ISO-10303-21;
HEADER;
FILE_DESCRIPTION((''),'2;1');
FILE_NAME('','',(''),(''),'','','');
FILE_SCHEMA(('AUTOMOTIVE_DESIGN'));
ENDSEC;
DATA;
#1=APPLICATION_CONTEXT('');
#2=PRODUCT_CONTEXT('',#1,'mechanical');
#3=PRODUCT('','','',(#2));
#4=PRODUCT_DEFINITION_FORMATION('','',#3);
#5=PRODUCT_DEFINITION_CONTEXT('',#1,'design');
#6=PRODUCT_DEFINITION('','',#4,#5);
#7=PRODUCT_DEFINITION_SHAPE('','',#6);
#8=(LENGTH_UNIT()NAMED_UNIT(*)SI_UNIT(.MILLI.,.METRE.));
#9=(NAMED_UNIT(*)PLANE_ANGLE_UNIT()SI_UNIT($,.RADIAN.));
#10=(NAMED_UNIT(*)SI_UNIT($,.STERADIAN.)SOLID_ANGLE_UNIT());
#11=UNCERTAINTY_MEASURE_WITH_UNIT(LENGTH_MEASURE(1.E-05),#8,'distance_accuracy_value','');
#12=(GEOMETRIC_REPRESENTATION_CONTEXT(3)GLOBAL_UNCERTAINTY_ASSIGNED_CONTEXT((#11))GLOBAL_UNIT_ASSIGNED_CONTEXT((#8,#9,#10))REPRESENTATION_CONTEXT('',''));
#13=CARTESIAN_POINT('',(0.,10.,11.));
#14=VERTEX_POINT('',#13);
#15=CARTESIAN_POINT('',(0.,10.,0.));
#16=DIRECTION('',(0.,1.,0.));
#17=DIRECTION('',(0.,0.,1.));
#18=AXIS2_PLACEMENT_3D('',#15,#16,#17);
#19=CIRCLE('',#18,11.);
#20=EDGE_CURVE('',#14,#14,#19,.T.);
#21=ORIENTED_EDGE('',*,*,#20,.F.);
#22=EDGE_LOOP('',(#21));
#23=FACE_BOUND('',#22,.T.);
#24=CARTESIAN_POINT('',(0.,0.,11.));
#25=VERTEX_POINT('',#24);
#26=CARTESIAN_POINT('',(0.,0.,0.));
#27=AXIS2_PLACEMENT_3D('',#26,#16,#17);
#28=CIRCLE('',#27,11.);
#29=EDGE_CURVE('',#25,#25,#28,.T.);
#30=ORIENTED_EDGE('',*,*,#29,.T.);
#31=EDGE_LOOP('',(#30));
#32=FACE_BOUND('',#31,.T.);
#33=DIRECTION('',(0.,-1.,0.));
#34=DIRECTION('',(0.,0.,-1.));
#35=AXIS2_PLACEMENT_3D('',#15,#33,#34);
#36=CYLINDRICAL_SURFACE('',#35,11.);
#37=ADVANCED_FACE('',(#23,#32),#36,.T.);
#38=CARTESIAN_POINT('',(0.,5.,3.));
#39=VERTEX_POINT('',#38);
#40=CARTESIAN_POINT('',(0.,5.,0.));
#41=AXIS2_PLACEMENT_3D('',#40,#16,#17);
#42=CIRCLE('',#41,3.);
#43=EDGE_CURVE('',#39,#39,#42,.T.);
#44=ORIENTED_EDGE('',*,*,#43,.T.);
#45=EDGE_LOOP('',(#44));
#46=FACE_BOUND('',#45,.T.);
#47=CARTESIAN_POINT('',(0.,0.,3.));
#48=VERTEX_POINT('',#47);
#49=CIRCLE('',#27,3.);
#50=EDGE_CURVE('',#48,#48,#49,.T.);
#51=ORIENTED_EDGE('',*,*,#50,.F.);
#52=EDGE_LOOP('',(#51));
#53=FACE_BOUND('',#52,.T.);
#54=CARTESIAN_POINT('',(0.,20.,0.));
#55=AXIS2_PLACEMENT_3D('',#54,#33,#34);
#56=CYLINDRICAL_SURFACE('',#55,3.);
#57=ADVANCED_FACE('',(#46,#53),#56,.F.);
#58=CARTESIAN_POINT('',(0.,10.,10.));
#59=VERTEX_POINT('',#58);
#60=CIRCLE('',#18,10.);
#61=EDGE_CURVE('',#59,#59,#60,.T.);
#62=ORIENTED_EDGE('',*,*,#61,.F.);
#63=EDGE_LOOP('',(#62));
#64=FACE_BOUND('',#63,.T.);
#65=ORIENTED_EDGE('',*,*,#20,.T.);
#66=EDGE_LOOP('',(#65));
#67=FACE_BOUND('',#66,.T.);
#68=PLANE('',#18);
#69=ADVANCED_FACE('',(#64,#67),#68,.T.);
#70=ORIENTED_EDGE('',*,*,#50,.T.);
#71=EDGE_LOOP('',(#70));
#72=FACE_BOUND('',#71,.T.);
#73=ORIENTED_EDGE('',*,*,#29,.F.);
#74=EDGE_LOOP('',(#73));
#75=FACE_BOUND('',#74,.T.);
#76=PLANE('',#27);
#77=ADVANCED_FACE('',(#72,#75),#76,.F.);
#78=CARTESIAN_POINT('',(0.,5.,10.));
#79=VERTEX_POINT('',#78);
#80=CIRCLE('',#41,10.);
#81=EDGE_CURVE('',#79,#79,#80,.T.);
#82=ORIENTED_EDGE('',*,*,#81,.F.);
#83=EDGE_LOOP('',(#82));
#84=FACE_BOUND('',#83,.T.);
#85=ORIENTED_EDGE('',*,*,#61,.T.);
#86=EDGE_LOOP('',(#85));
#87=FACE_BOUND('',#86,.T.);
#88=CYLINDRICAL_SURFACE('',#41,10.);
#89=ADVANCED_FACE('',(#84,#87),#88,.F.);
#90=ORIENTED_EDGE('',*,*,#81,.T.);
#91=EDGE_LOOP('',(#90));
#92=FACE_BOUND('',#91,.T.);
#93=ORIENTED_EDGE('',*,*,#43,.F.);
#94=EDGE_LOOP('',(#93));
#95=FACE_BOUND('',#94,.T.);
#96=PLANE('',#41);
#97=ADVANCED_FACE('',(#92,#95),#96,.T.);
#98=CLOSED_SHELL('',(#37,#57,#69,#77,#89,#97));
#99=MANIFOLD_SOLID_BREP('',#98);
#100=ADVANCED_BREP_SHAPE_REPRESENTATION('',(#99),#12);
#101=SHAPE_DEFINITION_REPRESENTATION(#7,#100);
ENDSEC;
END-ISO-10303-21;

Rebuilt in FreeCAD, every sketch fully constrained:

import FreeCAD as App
import Part
import Sketcher

doc = App.newDocument("Part")
params = doc.addObject("Spreadsheet::Sheet", "Params")
for row, (alias, value) in enumerate([
    ("sketch1_diameter", "22 mm"),
    ("pad1_length", "10 mm"),
    ("sketch2_diameter", "6 mm"),
    ("pocket1_length", "20 mm"),
    ("sketch3_diameter", "20 mm"),
    ("pocket2_length", "5 mm"),
], start=1):
    params.set(f"A{row}", alias)
    params.set(f"B{row}", "=" + value)
    params.setAlias(f"B{row}", alias)

body = doc.addObject("PartDesign::Body", "Body")

# Sketch on XZ plane
sketch1 = body.newObject("Sketcher::SketchObject", "Sketch")
sketch1.AttachmentSupport = (doc.getObject("XZ_Plane"), [""])
sketch1.MapMode = "FlatFace"
sketch1.addGeometry(Part.Circle(App.Vector(0, 0, 0), App.Vector(0, 0, 1), 11), False)
sketch1.addConstraint([
    Sketcher.Constraint("Coincident", 0, 3, -1, 1),
    Sketcher.Constraint("Diameter", 0, 22.0),
])
sketch1.setExpression("Constraints[1]", "Params.sketch1_diameter")
pad1 = body.newObject("PartDesign::Pad", "Pad")
pad1.Profile = sketch1
pad1.setExpression("Length", "Params.pad1_length")
pad1.Reversed = True

# Sketch on XZ plane
sketch2 = body.newObject("Sketcher::SketchObject", "Sketch001")
sketch2.AttachmentSupport = (doc.getObject("XZ_Plane"), [""])
sketch2.MapMode = "FlatFace"
sketch2.addGeometry(Part.Circle(App.Vector(0, 0, 0), App.Vector(0, 0, 1), 3), False)
sketch2.addConstraint([
    Sketcher.Constraint("Coincident", 0, 3, -1, 1),
    Sketcher.Constraint("Diameter", 0, 6.0),
])
sketch2.setExpression("Constraints[1]", "Params.sketch2_diameter")
pocket1 = body.newObject("PartDesign::Pocket", "Pocket")
pocket1.Profile = sketch2
pocket1.setExpression("Length", "Params.pocket1_length")

# Sketch on XZ plane
sketch3 = body.newObject("Sketcher::SketchObject", "Sketch002")
sketch3.AttachmentSupport = (doc.getObject("XZ_Plane"), [""])
sketch3.MapMode = "FlatFace"
sketch3.AttachmentOffset = App.Placement(App.Vector(0, 0, -10), App.Rotation())
sketch3.addGeometry(Part.Circle(App.Vector(0, 0, 0), App.Vector(0, 0, 1), 10), False)
sketch3.addConstraint([
    Sketcher.Constraint("Coincident", 0, 3, -1, 1),
    Sketcher.Constraint("Diameter", 0, 20.0),
])
sketch3.setExpression("Constraints[1]", "Params.sketch3_diameter")
pocket2 = body.newObject("PartDesign::Pocket", "Pocket001")
pocket2.Profile = sketch3
pocket2.setExpression("Length", "Params.pocket2_length")
pocket2.Reversed = True

doc.recompute()
